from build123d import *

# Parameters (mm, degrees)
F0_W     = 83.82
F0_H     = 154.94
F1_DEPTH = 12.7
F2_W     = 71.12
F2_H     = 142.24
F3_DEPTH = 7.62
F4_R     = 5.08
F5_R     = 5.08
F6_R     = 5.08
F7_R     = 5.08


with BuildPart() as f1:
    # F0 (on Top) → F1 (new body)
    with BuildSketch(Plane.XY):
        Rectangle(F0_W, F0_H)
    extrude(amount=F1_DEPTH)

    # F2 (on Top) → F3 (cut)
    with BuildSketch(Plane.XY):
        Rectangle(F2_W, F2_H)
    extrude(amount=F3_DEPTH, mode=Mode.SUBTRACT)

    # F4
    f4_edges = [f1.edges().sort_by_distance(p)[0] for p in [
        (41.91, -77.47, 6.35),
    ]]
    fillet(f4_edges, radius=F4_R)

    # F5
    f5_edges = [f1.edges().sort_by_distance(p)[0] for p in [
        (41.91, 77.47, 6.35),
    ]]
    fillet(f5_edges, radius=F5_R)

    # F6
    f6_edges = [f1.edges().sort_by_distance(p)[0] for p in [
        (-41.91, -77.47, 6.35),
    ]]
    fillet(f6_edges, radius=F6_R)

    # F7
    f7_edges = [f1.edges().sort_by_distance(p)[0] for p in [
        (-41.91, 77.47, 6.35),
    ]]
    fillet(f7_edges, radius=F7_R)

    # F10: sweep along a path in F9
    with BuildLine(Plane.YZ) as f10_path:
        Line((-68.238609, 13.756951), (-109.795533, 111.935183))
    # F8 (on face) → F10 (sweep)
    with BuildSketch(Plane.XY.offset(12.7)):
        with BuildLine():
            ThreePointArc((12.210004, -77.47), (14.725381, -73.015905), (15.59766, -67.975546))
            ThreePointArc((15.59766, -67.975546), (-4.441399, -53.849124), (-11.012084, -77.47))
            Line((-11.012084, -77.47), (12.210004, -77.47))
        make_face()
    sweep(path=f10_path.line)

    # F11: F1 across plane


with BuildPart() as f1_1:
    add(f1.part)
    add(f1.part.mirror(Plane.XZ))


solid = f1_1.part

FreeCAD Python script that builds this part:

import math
import FreeCAD as App
import Part
import Sketcher

V = App.Vector
Q = App.Units.Quantity


def edges_at(feature, points):
    """Names of the edges that pass closest to the given points."""
    edges = feature.Shape.Edges
    near = lambda p: min(range(len(edges)), key=lambda i: edges[i].distToShape(Part.Vertex(*p))[0])
    return sorted({f"Edge{near(p) + 1}" for p in points})

doc = App.newDocument("Part")
body = doc.addObject("PartDesign::Body", "Body")

# Sketch on XY plane
sketch1 = body.newObject("Sketcher::SketchObject", "Sketch")
sketch1.AttachmentSupport = (doc.getObject("XY_Plane"), [""])
sketch1.MapMode = "FlatFace"
sketch1.addGeometry([
    Part.LineSegment(V(-42, 77, 0), V(-42, -77, 0)),
    Part.LineSegment(V(-42, -77, 0), V(42, -77, 0)),
    Part.LineSegment(V(42, -77, 0), V(42, 77, 0)),
    Part.LineSegment(V(42, 77, 0), V(-42, 77, 0)),
], False)
sketch1.addConstraint([
    Sketcher.Constraint("Coincident", 0, 2, 1, 1),
    Sketcher.Constraint("Coincident", 1, 2, 2, 1),
    Sketcher.Constraint("Coincident", 2, 2, 3, 1),
    Sketcher.Constraint("Coincident", 3, 2, 0, 1),
    Sketcher.Constraint("Vertical", 0),
    Sketcher.Constraint("Horizontal", 1),
    Sketcher.Constraint("Vertical", 2),
    Sketcher.Constraint("Horizontal", 3),
    Sketcher.Constraint("Symmetric", 0, 2, 2, 2, -1, 1),
    Sketcher.Constraint("DistanceX", 1, 1, 1, 2, Q("3.3 in")),
    Sketcher.Constraint("DistanceY", 0, 2, 0, 1, Q("6.1 in")),
])
pad1 = body.newObject("PartDesign::Pad", "Pad")
pad1.Profile = sketch1
pad1.Length = Q("0.5 in")

# Sketch on XY plane
sketch2 = body.newObject("Sketcher::SketchObject", "Sketch001")
sketch2.AttachmentSupport = (doc.getObject("XY_Plane"), [""])
sketch2.MapMode = "FlatFace"
sketch2.addGeometry([
    Part.LineSegment(V(-36, 71, 0), V(-36, -71, 0)),
    Part.LineSegment(V(-36, -71, 0), V(36, -71, 0)),
    Part.LineSegment(V(36, -71, 0), V(36, 71, 0)),
    Part.LineSegment(V(36, 71, 0), V(-36, 71, 0)),
], False)
sketch2.addConstraint([
    Sketcher.Constraint("Coincident", 0, 2, 1, 1),
    Sketcher.Constraint("Coincident", 1, 2, 2, 1),
    Sketcher.Constraint("Coincident", 2, 2, 3, 1),
    Sketcher.Constraint("Coincident", 3, 2, 0, 1),
    Sketcher.Constraint("Vertical", 0),
    Sketcher.Constraint("Horizontal", 1),
    Sketcher.Constraint("Vertical", 2),
    Sketcher.Constraint("Horizontal", 3),
    Sketcher.Constraint("Symmetric", 0, 2, 2, 2, -1, 1),
    Sketcher.Constraint("DistanceX", 1, 1, 1, 2, Q("2.8 in")),
    Sketcher.Constraint("DistanceY", 0, 2, 0, 1, Q("5.6 in")),
])
pocket1 = body.newObject("PartDesign::Pocket", "Pocket")
pocket1.Profile = sketch2
pocket1.Length = Q("0.3 in")
pocket1.Reversed = True
doc.recompute()

fillet = body.newObject("PartDesign::Fillet", "Fillet")
fillet.Base = (pocket1, edges_at(pocket1, [(41.91, -77.47, 6.35)]))
fillet.Radius = Q("0.2 in")
doc.recompute()

fillet2 = body.newObject("PartDesign::Fillet", "Fillet001")
fillet2.Base = (fillet, edges_at(fillet, [(41.91, 77.47, 6.35)]))
fillet2.Radius = Q("0.2 in")
doc.recompute()

fillet3 = body.newObject("PartDesign::Fillet", "Fillet002")
fillet3.Base = (fillet2, edges_at(fillet2, [(-41.91, -77.47, 6.35)]))
fillet3.Radius = Q("0.2 in")
doc.recompute()

fillet4 = body.newObject("PartDesign::Fillet", "Fillet003")
fillet4.Base = (fillet3, edges_at(fillet3, [(-41.91, 77.47, 6.35)]))
fillet4.Radius = Q("0.2 in")

# Sketch on XY plane
sketch3 = body.newObject("Sketcher::SketchObject", "Sketch002")
sketch3.AttachmentSupport = (doc.getObject("XY_Plane"), [""])
sketch3.MapMode = "FlatFace"
sketch3.AttachmentOffset = App.Placement(V(0, 0, 0.5 * 25.4), App.Rotation())
sketch3.addGeometry([
    Part.ArcOfCircle(Part.Circle(V(1, -68, 0), V(0, 0, 1), 15), math.radians(-39), math.radians(0)),
    Part.ArcOfCircle(Part.Circle(V(1, -68, 0), V(0, 0, 1), 15), math.radians(0), math.radians(219)),
    Part.LineSegment(V(-11, -77, 0), V(12, -77, 0)),
], False)
sketch3.addConstraint([
    Sketcher.Constraint("Tangent", 0, 2, 1, 1),
    Sketcher.Constraint("Coincident", 1, 2, 2, 1),
    Sketcher.Constraint("Coincident", 2, 2, 0, 1),
    Sketcher.Constraint("Horizontal", 2),
    Sketcher.Constraint("Horizontal", 1, 3, 0, 2),
    Sketcher.Constraint("Radius", 1, Q("0.5905 in")),
    Sketcher.Constraint("DistanceY", 1, 2, -1, 1, Q("3.05 in")),
    Sketcher.Constraint("Radius", 0, Q("14.998706 mm")),
    Sketcher.Constraint("DistanceX", 2, 1, 2, 2, Q("23.222088 mm")),
    Sketcher.Constraint("DistanceX", -1, 1, 1, 3, Q("0.59896 mm")),
])

# Sketch on an angled plane
sketch4 = body.newObject("Sketcher::SketchObject", "Sketch003")
sketch4.Placement = App.Placement(V(0, -52.93194, -22.405054), App.Rotation(V(0, 0.38979894, -0.920899987), V(1, 0, 0), V(0, -0.920899987, -0.38979894), "ZXY"))
sketch4.addGeometry(Part.LineSegment(V(-39, 0, 0), V(-146, 0, 0)), False)
sketch4.addConstraint([
    Sketcher.Constraint("Horizontal", 0),
    Sketcher.Constraint("PointOnObject", 0, 1, -1),
    Sketcher.Constraint("DistanceX", 0, 2, 0, 1, Q("106.611177 mm")),
    Sketcher.Constraint("DistanceX", 0, 2, -1, 1, Q("145.879291 mm")),
])
doc.recompute()

additivepipe = body.newObject("PartDesign::AdditivePipe", "AdditivePipe")
additivepipe.Profile = sketch3
additivepipe.Spine = (sketch4, ["Edge1"])
body2 = doc.addObject("PartDesign::Body", "Body001")
doc.recompute()

body2.BaseFeature = body
doc.recompute()

mirroring = doc.addObject("Part::Mirroring", "Mirroring")
mirroring.Source = body
mirroring.Base = V(0, 0, 0)
mirroring.Normal = V(0, -1, 0)
body3 = doc.addObject("PartDesign::Body", "Body002")
body3.BaseFeature = mirroring
boolean = body2.newObject("PartDesign::Boolean", "Boolean")
boolean.Type = "Fuse"
boolean.addObjects([body3])
doc.recompute()
mirroring.Visibility = False

doc.recompute()
